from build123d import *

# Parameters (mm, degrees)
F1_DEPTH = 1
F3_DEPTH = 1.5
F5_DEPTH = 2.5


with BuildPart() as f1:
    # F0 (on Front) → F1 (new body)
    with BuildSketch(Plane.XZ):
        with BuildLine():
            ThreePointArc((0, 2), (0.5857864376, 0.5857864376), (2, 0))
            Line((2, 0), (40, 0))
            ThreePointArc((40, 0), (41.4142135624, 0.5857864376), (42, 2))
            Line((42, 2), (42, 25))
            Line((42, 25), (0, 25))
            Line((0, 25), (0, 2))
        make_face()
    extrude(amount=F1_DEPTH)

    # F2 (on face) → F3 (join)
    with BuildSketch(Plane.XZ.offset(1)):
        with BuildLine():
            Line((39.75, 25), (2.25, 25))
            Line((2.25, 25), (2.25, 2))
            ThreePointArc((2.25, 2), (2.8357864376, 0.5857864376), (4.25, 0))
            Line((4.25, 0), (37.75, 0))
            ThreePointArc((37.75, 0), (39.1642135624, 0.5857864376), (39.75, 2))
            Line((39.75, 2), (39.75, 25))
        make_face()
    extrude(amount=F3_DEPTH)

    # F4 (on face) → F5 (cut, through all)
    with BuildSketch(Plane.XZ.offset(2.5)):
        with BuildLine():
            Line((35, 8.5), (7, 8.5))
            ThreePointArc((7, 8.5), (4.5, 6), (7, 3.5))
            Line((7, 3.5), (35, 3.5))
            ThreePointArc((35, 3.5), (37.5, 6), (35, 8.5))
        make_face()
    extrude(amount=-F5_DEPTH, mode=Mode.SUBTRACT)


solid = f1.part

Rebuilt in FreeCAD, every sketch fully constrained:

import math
import FreeCAD as App
import Part
import Sketcher
from FreeCAD import Vector

doc = App.newDocument("Part")
params = doc.addObject("Spreadsheet::Sheet", "Params")
for row, (alias, value) in enumerate([
    ("sketch1_radius", "2 mm"),
    ("sketch1_width", "38 mm"),
    ("sketch1_height", "23 mm"),
    ("pad1_length", "1 mm"),
    ("sketch2_radius", "2 mm"),
    ("sketch2_height", "23 mm"),
    ("sketch2_width", "37.5 mm"),
    ("pad2_length", "1.5 mm"),
    ("sketch3_radius", "2.5 mm"),
    ("sketch3_width", "28 mm"),
], start=1):
    params.set(f"A{row}", alias)
    params.set(f"B{row}", "=" + value)
    params.setAlias(f"B{row}", alias)

body = doc.addObject("PartDesign::Body", "Body")

# Sketch on XZ plane
sketch1 = doc.addObject("Sketcher::SketchObject", "Sketch")
body.addObject(sketch1)
sketch1.AttachmentSupport = (doc.XZ_Plane, [""])
sketch1.MapMode = "FlatFace"
sketch1.addGeometry([
    Part.ArcOfCircle(Part.Circle(Vector(2, 2, 0), Vector(0, 0, 1), 2), math.radians(180), math.radians(270)),  # 0
    Part.LineSegment(Vector(2, 0, 0), Vector(40, 0, 0)),  # 1
    Part.ArcOfCircle(Part.Circle(Vector(40, 2, 0), Vector(0, 0, 1), 2), math.radians(-90), math.radians(0)),  # 2
    Part.LineSegment(Vector(42, 2, 0), Vector(42, 25, 0)),  # 3
    Part.LineSegment(Vector(42, 25, 0), Vector(0, 25, 0)),  # 4
    Part.LineSegment(Vector(0, 25, 0), Vector(0, 2, 0)),  # 5
], False)
sketch1.addConstraint([
    Sketcher.Constraint("Tangent", 0, 2, 1, 1),
    Sketcher.Constraint("Tangent", 1, 2, 2, 1),
    Sketcher.Constraint("Tangent", 2, 2, 3, 1),
    Sketcher.Constraint("Coincident", 3, 2, 4, 1),
    Sketcher.Constraint("Coincident", 4, 2, 5, 1),
    Sketcher.Constraint("Tangent", 5, 2, 0, 1),
    Sketcher.Constraint("Horizontal", 1),
    Sketcher.Constraint("Vertical", 3),
    Sketcher.Constraint("Horizontal", 4),
    Sketcher.Constraint("Vertical", 5),
    Sketcher.Constraint("Equal", 0, 2),
    Sketcher.Constraint("PointOnObject", 0, 2, -1),
    Sketcher.Constraint("PointOnObject", 4, 2, -2),
    Sketcher.Constraint("Radius", 0, 2.0),
    Sketcher.Constraint("DistanceX", 1, 1, 1, 2, 38.0),
    Sketcher.Constraint("DistanceY", 3, 1, 3, 2, 23.0),
])
sketch1.setExpression("Constraints[13]", "Params.sketch1_radius")
sketch1.setExpression("Constraints[14]", "Params.sketch1_width")
sketch1.setExpression("Constraints[15]", "Params.sketch1_height")
pad1 = doc.addObject("PartDesign::Pad", "Pad")
body.addObject(pad1)
pad1.Profile = sketch1
pad1.setExpression("Length", "Params.pad1_length")

# Sketch on XZ plane
sketch2 = doc.addObject("Sketcher::SketchObject", "Sketch001")
body.addObject(sketch2)
sketch2.AttachmentSupport = (doc.XZ_Plane, [""])
sketch2.MapMode = "FlatFace"
sketch2.AttachmentOffset = App.Placement(Vector(0, 0, 1), App.Rotation())
sketch2.addGeometry([
    Part.LineSegment(Vector(39.8, 25, 0), Vector(2.2, 25, 0)),  # 0
    Part.LineSegment(Vector(2.2, 25, 0), Vector(2.2, 2, 0)),  # 1
    Part.ArcOfCircle(Part.Circle(Vector(4.2, 2, 0), Vector(0, 0, 1), 2), math.radians(180), math.radians(270)),  # 2
    Part.LineSegment(Vector(4.2, 0, 0), Vector(37.8, 0, 0)),  # 3
    Part.ArcOfCircle(Part.Circle(Vector(37.8, 2, 0), Vector(0, 0, 1), 2), math.radians(-90), math.radians(0)),  # 4
    Part.LineSegment(Vector(39.8, 2, 0), Vector(39.8, 25, 0)),  # 5
], False)
sketch2.addConstraint([
    Sketcher.Constraint("Coincident", 0, 2, 1, 1),
    Sketcher.Constraint("Tangent", 1, 2, 2, 1),
    Sketcher.Constraint("Tangent", 2, 2, 3, 1),
    Sketcher.Constraint("Tangent", 3, 2, 4, 1),
    Sketcher.Constraint("Tangent", 4, 2, 5, 1),
    Sketcher.Constraint("Coincident", 5, 2, 0, 1),
    Sketcher.Constraint("Horizontal", 0),
    Sketcher.Constraint("Vertical", 1),
    Sketcher.Constraint("Horizontal", 3),
    Sketcher.Constraint("Vertical", 5),
    Sketcher.Constraint("Equal", 2, 4),
    Sketcher.Constraint("PointOnObject", 2, 2, -1),
    Sketcher.Constraint("Radius", 2, 2.0),
    Sketcher.Constraint("DistanceY", 1, 2, 1, 1, 23.0),
    Sketcher.Constraint("DistanceX", 0, 2, 0, 1, 37.5),
    Sketcher.Constraint("DistanceX", -1, 1, 2, 3, 4.25),
])
sketch2.setExpression("Constraints[12]", "Params.sketch2_radius")
sketch2.setExpression("Constraints[13]", "Params.sketch2_height")
sketch2.setExpression("Constraints[14]", "Params.sketch2_width")
pad2 = doc.addObject("PartDesign::Pad", "Pad001")
body.addObject(pad2)
pad2.Profile = sketch2
pad2.setExpression("Length", "Params.pad2_length")

# Sketch on XZ plane
sketch3 = doc.addObject("Sketcher::SketchObject", "Sketch002")
body.addObject(sketch3)
sketch3.AttachmentSupport = (doc.XZ_Plane, [""])
sketch3.MapMode = "FlatFace"
sketch3.AttachmentOffset = App.Placement(Vector(0, 0, 2.5), App.Rotation())
sketch3.addGeometry([
    Part.LineSegment(Vector(35, 8.5, 0), Vector(7, 8.5, 0)),
    Part.ArcOfCircle(Part.Circle(Vector(7, 6, 0), Vector(0, 0, 1), 2.5), math.radians(90), math.radians(270)),
    Part.LineSegment(Vector(7, 3.5, 0), Vector(35, 3.5, 0)),
    Part.ArcOfCircle(Part.Circle(Vector(35, 6, 0), Vector(0, 0, 1), 2.5), math.radians(-90), math.radians(90)),
], False)
sketch3.addConstraint([
    Sketcher.Constraint("Tangent", 0, 2, 1, 1),
    Sketcher.Constraint("Tangent", 1, 2, 2, 1),
    Sketcher.Constraint("Tangent", 2, 2, 3, 1),
    Sketcher.Constraint("Tangent", 3, 2, 0, 1),
    Sketcher.Constraint("Horizontal", 0),
    Sketcher.Constraint("Horizontal", 2),
    Sketcher.Constraint("Radius", 1, 2.5),
    Sketcher.Constraint("DistanceX", 0, 2, 0, 1, 28.0),
    Sketcher.Constraint("DistanceX", -1, 1, 1, 3, 7.0),
    Sketcher.Constraint("DistanceY", -1, 1, 1, 3, 6.0),
])
sketch3.setExpression("Constraints[6]", "Params.sketch3_radius")
sketch3.setExpression("Constraints[7]", "Params.sketch3_width")
pocket1 = doc.addObject("PartDesign::Pocket", "Pocket")
body.addObject(pocket1)
pocket1.Profile = sketch3
pocket1.Type = "ThroughAll"

doc.recompute()
